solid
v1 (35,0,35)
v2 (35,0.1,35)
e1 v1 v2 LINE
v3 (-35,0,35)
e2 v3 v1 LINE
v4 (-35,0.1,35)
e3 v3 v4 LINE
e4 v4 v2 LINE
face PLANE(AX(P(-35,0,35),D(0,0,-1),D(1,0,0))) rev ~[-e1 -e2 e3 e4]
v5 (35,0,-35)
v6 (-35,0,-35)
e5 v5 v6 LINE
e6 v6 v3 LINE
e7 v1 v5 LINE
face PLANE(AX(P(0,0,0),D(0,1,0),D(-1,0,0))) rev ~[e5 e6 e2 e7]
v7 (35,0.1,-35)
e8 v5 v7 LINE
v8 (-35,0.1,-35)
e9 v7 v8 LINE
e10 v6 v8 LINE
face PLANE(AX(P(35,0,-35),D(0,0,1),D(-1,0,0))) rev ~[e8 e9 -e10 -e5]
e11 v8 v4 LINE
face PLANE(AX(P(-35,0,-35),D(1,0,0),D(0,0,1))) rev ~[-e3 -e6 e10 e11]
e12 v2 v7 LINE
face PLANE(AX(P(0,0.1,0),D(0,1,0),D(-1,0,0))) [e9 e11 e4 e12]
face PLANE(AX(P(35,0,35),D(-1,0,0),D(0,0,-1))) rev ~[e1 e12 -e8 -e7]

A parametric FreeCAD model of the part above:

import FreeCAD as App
import Part
import Sketcher


def add_polygon(sketch, points):
    """Adds a closed chain of lines whose ends are joined by coincident constraints."""
    first, n = sketch.GeometryCount, len(points)
    for a, b in zip(points, points[1:] + points[:1]):
        sketch.addGeometry(Part.LineSegment(App.Vector(*a, 0), App.Vector(*b, 0)), False)
    for i in range(n):
        sketch.addConstraint(Sketcher.Constraint("Coincident", first + i, 2, first + (i + 1) % n, 1))

doc = App.newDocument("Part")
body = doc.addObject("PartDesign::Body", "Body")

# Sketch on XZ plane
sketch1 = doc.addObject("Sketcher::SketchObject", "Sketch")
body.addObject(sketch1)
sketch1.AttachmentSupport = (doc.XZ_Plane, [""])
sketch1.MapMode = "FlatFace"
add_polygon(sketch1, [(-35, -35), (-35, 35), (35, 35), (35, -35)])  # lines 0-3
sketch1.addConstraint(Sketcher.Constraint("Vertical", 0))
sketch1.addConstraint(Sketcher.Constraint("Horizontal", 1))
sketch1.addConstraint(Sketcher.Constraint("Vertical", 2))
sketch1.addConstraint(Sketcher.Constraint("Horizontal", 3))
sketch1.addConstraint(Sketcher.Constraint("Symmetric", 0, 2, 2, 2, -1, 1))
sketch1.addConstraint(Sketcher.Constraint("Equal", 3, 0))
sketch1.addConstraint(Sketcher.Constraint("DistanceX", 1, 1, 1, 2, 70.0))
pad1 = doc.addObject("PartDesign::Pad", "Pad")
body.addObject(pad1)
pad1.Profile = sketch1
pad1.Length = 0.1
pad1.Reversed = True

doc.recompute()
